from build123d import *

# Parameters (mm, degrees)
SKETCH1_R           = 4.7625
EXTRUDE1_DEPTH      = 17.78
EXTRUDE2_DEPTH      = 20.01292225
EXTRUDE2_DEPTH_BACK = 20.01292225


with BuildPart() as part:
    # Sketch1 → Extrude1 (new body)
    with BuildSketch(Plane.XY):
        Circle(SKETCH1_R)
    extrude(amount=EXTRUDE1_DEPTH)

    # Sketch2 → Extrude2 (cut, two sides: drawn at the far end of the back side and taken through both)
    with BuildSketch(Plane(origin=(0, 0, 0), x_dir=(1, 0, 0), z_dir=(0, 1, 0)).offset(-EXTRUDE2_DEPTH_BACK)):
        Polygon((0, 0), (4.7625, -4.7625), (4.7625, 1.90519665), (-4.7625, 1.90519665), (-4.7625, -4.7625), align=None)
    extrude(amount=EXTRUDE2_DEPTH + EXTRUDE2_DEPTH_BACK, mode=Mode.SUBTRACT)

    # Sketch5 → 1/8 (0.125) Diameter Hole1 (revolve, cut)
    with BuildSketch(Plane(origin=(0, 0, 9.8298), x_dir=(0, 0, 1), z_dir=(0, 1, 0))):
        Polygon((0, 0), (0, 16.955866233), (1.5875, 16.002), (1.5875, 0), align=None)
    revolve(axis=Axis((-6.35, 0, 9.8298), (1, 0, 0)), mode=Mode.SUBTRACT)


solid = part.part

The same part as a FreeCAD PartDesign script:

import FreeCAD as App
import Part
import Sketcher
from FreeCAD import Vector
Q = App.Units.Quantity


def add_polygon(sketch, points):
    """Adds a closed chain of lines whose ends are joined by coincident constraints."""
    first, n = sketch.GeometryCount, len(points)
    for a, b in zip(points, points[1:] + points[:1]):
        sketch.addGeometry(Part.LineSegment(App.Vector(*a, 0), App.Vector(*b, 0)), False)
    for i in range(n):
        sketch.addConstraint(Sketcher.Constraint("Coincident", first + i, 2, first + (i + 1) % n, 1))

doc = App.newDocument("Part")
params = doc.addObject("Spreadsheet::Sheet", "Params")
for row, (alias, value) in enumerate([
    ("sketch1_diameter", "0.375 in"),
    ("pad1_length", "0.7 in"),
    ("sketch2_width", "0.375 in"),
    ("sketch3_width", "0.63 in"),
    ("sketch3_height", "0.0625 in"),
    ("groove_angle", "360 deg"),
], start=1):
    params.set(f"A{row}", alias)
    params.set(f"B{row}", "=" + value)
    params.setAlias(f"B{row}", alias)

body = doc.addObject("PartDesign::Body", "Body")

# Sketch on XY plane
sketch1 = doc.addObject("Sketcher::SketchObject", "Sketch")
body.addObject(sketch1)
sketch1.AttachmentSupport = (doc.XY_Plane, [""])
sketch1.MapMode = "FlatFace"
sketch1.addGeometry(Part.Circle(Vector(0, 0, 0), Vector(0, 0, 1), 4.7625), False)
sketch1.addConstraint([
    Sketcher.Constraint("Coincident", 0, 3, -1, 1),
    Sketcher.Constraint("Diameter", 0, Q("0.375 in")),
])
sketch1.setExpression("Constraints[1]", "Params.sketch1_diameter")
pad1 = doc.addObject("PartDesign::Pad", "Pad")
body.addObject(pad1)
pad1.Profile = sketch1
pad1.setExpression("Length", "Params.pad1_length")

# Sketch on XZ plane
sketch2 = doc.addObject("Sketcher::SketchObject", "Sketch001")
body.addObject(sketch2)
sketch2.AttachmentSupport = (doc.XZ_Plane, [""])
sketch2.MapMode = "FlatFace"
add_polygon(sketch2, [(0, 0), (4.7625, 4.7625), (4.7625, -1.905197), (-4.7625, -1.905197), (-4.7625, 4.7625)])  # lines 0-4
sketch2.addConstraint([
    Sketcher.Constraint("Vertical", 1),
    Sketcher.Constraint("Horizontal", 2),
    Sketcher.Constraint("Vertical", 3),
    Sketcher.Constraint("Coincident", 4, 2, -1, 1),
    Sketcher.Constraint("Symmetric", 0, 2, 3, 2, -2),
    Sketcher.Constraint("Perpendicular", 0, 4),
    Sketcher.Constraint("DistanceX", 2, 2, 2, 1, Q("0.375 in")),
    Sketcher.Constraint("DistanceY", 1, 2, 1, 1, Q("6.667697 mm")),
])
sketch2.setExpression("Constraints[11]", "Params.sketch2_width")
pocket1 = doc.addObject("PartDesign::Pocket", "Pocket")
body.addObject(pocket1)
pocket1.Profile = sketch2
pocket1.Type = "ThroughAll"
pocket1.Midplane = True

# Sketch on XZ plane
sketch3 = doc.addObject("Sketcher::SketchObject", "Sketch002")
body.addObject(sketch3)
sketch3.AttachmentSupport = (doc.XZ_Plane, [""])
sketch3.MapMode = "FlatFace"
add_polygon(sketch3, [(16.955866, 9.8298), (0, 9.8298), (0, 11.4173), (16.002, 11.4173)])  # lines 0-3
sketch3.addGeometry(Part.LineSegment(Vector(0, 9.8298, 0), Vector(16.955866, 9.8298, 0)), True)  # axis
sketch3.addConstraint([
    Sketcher.Constraint("Horizontal", 0),
    Sketcher.Constraint("Vertical", 1),
    Sketcher.Constraint("Horizontal", 2),
    Sketcher.Constraint("Horizontal", 4),
    Sketcher.Constraint("Coincident", 4, 1, 0, 2),
    Sketcher.Constraint("PointOnObject", 0, 2, -2),
    Sketcher.Constraint("Equal", 0, 4),
    Sketcher.Constraint("Angle", 3, Q("-59 deg")),
    Sketcher.Constraint("DistanceX", 2, 1, 2, 2, Q("0.63 in")),
    Sketcher.Constraint("DistanceY", 1, 1, 1, 2, Q("0.0625 in")),
    Sketcher.Constraint("DistanceY", -1, 1, 0, 2, Q("0.387 in")),
])
sketch3.setExpression("Constraints[12]", "Params.sketch3_width")
sketch3.setExpression("Constraints[13]", "Params.sketch3_height")
groove = doc.addObject("PartDesign::Groove", "Groove")
body.addObject(groove)
groove.Profile = sketch3
groove.ReferenceAxis = (sketch3, ["Axis0"])
groove.setExpression("Angle", "Params.groove_angle")

doc.recompute()
